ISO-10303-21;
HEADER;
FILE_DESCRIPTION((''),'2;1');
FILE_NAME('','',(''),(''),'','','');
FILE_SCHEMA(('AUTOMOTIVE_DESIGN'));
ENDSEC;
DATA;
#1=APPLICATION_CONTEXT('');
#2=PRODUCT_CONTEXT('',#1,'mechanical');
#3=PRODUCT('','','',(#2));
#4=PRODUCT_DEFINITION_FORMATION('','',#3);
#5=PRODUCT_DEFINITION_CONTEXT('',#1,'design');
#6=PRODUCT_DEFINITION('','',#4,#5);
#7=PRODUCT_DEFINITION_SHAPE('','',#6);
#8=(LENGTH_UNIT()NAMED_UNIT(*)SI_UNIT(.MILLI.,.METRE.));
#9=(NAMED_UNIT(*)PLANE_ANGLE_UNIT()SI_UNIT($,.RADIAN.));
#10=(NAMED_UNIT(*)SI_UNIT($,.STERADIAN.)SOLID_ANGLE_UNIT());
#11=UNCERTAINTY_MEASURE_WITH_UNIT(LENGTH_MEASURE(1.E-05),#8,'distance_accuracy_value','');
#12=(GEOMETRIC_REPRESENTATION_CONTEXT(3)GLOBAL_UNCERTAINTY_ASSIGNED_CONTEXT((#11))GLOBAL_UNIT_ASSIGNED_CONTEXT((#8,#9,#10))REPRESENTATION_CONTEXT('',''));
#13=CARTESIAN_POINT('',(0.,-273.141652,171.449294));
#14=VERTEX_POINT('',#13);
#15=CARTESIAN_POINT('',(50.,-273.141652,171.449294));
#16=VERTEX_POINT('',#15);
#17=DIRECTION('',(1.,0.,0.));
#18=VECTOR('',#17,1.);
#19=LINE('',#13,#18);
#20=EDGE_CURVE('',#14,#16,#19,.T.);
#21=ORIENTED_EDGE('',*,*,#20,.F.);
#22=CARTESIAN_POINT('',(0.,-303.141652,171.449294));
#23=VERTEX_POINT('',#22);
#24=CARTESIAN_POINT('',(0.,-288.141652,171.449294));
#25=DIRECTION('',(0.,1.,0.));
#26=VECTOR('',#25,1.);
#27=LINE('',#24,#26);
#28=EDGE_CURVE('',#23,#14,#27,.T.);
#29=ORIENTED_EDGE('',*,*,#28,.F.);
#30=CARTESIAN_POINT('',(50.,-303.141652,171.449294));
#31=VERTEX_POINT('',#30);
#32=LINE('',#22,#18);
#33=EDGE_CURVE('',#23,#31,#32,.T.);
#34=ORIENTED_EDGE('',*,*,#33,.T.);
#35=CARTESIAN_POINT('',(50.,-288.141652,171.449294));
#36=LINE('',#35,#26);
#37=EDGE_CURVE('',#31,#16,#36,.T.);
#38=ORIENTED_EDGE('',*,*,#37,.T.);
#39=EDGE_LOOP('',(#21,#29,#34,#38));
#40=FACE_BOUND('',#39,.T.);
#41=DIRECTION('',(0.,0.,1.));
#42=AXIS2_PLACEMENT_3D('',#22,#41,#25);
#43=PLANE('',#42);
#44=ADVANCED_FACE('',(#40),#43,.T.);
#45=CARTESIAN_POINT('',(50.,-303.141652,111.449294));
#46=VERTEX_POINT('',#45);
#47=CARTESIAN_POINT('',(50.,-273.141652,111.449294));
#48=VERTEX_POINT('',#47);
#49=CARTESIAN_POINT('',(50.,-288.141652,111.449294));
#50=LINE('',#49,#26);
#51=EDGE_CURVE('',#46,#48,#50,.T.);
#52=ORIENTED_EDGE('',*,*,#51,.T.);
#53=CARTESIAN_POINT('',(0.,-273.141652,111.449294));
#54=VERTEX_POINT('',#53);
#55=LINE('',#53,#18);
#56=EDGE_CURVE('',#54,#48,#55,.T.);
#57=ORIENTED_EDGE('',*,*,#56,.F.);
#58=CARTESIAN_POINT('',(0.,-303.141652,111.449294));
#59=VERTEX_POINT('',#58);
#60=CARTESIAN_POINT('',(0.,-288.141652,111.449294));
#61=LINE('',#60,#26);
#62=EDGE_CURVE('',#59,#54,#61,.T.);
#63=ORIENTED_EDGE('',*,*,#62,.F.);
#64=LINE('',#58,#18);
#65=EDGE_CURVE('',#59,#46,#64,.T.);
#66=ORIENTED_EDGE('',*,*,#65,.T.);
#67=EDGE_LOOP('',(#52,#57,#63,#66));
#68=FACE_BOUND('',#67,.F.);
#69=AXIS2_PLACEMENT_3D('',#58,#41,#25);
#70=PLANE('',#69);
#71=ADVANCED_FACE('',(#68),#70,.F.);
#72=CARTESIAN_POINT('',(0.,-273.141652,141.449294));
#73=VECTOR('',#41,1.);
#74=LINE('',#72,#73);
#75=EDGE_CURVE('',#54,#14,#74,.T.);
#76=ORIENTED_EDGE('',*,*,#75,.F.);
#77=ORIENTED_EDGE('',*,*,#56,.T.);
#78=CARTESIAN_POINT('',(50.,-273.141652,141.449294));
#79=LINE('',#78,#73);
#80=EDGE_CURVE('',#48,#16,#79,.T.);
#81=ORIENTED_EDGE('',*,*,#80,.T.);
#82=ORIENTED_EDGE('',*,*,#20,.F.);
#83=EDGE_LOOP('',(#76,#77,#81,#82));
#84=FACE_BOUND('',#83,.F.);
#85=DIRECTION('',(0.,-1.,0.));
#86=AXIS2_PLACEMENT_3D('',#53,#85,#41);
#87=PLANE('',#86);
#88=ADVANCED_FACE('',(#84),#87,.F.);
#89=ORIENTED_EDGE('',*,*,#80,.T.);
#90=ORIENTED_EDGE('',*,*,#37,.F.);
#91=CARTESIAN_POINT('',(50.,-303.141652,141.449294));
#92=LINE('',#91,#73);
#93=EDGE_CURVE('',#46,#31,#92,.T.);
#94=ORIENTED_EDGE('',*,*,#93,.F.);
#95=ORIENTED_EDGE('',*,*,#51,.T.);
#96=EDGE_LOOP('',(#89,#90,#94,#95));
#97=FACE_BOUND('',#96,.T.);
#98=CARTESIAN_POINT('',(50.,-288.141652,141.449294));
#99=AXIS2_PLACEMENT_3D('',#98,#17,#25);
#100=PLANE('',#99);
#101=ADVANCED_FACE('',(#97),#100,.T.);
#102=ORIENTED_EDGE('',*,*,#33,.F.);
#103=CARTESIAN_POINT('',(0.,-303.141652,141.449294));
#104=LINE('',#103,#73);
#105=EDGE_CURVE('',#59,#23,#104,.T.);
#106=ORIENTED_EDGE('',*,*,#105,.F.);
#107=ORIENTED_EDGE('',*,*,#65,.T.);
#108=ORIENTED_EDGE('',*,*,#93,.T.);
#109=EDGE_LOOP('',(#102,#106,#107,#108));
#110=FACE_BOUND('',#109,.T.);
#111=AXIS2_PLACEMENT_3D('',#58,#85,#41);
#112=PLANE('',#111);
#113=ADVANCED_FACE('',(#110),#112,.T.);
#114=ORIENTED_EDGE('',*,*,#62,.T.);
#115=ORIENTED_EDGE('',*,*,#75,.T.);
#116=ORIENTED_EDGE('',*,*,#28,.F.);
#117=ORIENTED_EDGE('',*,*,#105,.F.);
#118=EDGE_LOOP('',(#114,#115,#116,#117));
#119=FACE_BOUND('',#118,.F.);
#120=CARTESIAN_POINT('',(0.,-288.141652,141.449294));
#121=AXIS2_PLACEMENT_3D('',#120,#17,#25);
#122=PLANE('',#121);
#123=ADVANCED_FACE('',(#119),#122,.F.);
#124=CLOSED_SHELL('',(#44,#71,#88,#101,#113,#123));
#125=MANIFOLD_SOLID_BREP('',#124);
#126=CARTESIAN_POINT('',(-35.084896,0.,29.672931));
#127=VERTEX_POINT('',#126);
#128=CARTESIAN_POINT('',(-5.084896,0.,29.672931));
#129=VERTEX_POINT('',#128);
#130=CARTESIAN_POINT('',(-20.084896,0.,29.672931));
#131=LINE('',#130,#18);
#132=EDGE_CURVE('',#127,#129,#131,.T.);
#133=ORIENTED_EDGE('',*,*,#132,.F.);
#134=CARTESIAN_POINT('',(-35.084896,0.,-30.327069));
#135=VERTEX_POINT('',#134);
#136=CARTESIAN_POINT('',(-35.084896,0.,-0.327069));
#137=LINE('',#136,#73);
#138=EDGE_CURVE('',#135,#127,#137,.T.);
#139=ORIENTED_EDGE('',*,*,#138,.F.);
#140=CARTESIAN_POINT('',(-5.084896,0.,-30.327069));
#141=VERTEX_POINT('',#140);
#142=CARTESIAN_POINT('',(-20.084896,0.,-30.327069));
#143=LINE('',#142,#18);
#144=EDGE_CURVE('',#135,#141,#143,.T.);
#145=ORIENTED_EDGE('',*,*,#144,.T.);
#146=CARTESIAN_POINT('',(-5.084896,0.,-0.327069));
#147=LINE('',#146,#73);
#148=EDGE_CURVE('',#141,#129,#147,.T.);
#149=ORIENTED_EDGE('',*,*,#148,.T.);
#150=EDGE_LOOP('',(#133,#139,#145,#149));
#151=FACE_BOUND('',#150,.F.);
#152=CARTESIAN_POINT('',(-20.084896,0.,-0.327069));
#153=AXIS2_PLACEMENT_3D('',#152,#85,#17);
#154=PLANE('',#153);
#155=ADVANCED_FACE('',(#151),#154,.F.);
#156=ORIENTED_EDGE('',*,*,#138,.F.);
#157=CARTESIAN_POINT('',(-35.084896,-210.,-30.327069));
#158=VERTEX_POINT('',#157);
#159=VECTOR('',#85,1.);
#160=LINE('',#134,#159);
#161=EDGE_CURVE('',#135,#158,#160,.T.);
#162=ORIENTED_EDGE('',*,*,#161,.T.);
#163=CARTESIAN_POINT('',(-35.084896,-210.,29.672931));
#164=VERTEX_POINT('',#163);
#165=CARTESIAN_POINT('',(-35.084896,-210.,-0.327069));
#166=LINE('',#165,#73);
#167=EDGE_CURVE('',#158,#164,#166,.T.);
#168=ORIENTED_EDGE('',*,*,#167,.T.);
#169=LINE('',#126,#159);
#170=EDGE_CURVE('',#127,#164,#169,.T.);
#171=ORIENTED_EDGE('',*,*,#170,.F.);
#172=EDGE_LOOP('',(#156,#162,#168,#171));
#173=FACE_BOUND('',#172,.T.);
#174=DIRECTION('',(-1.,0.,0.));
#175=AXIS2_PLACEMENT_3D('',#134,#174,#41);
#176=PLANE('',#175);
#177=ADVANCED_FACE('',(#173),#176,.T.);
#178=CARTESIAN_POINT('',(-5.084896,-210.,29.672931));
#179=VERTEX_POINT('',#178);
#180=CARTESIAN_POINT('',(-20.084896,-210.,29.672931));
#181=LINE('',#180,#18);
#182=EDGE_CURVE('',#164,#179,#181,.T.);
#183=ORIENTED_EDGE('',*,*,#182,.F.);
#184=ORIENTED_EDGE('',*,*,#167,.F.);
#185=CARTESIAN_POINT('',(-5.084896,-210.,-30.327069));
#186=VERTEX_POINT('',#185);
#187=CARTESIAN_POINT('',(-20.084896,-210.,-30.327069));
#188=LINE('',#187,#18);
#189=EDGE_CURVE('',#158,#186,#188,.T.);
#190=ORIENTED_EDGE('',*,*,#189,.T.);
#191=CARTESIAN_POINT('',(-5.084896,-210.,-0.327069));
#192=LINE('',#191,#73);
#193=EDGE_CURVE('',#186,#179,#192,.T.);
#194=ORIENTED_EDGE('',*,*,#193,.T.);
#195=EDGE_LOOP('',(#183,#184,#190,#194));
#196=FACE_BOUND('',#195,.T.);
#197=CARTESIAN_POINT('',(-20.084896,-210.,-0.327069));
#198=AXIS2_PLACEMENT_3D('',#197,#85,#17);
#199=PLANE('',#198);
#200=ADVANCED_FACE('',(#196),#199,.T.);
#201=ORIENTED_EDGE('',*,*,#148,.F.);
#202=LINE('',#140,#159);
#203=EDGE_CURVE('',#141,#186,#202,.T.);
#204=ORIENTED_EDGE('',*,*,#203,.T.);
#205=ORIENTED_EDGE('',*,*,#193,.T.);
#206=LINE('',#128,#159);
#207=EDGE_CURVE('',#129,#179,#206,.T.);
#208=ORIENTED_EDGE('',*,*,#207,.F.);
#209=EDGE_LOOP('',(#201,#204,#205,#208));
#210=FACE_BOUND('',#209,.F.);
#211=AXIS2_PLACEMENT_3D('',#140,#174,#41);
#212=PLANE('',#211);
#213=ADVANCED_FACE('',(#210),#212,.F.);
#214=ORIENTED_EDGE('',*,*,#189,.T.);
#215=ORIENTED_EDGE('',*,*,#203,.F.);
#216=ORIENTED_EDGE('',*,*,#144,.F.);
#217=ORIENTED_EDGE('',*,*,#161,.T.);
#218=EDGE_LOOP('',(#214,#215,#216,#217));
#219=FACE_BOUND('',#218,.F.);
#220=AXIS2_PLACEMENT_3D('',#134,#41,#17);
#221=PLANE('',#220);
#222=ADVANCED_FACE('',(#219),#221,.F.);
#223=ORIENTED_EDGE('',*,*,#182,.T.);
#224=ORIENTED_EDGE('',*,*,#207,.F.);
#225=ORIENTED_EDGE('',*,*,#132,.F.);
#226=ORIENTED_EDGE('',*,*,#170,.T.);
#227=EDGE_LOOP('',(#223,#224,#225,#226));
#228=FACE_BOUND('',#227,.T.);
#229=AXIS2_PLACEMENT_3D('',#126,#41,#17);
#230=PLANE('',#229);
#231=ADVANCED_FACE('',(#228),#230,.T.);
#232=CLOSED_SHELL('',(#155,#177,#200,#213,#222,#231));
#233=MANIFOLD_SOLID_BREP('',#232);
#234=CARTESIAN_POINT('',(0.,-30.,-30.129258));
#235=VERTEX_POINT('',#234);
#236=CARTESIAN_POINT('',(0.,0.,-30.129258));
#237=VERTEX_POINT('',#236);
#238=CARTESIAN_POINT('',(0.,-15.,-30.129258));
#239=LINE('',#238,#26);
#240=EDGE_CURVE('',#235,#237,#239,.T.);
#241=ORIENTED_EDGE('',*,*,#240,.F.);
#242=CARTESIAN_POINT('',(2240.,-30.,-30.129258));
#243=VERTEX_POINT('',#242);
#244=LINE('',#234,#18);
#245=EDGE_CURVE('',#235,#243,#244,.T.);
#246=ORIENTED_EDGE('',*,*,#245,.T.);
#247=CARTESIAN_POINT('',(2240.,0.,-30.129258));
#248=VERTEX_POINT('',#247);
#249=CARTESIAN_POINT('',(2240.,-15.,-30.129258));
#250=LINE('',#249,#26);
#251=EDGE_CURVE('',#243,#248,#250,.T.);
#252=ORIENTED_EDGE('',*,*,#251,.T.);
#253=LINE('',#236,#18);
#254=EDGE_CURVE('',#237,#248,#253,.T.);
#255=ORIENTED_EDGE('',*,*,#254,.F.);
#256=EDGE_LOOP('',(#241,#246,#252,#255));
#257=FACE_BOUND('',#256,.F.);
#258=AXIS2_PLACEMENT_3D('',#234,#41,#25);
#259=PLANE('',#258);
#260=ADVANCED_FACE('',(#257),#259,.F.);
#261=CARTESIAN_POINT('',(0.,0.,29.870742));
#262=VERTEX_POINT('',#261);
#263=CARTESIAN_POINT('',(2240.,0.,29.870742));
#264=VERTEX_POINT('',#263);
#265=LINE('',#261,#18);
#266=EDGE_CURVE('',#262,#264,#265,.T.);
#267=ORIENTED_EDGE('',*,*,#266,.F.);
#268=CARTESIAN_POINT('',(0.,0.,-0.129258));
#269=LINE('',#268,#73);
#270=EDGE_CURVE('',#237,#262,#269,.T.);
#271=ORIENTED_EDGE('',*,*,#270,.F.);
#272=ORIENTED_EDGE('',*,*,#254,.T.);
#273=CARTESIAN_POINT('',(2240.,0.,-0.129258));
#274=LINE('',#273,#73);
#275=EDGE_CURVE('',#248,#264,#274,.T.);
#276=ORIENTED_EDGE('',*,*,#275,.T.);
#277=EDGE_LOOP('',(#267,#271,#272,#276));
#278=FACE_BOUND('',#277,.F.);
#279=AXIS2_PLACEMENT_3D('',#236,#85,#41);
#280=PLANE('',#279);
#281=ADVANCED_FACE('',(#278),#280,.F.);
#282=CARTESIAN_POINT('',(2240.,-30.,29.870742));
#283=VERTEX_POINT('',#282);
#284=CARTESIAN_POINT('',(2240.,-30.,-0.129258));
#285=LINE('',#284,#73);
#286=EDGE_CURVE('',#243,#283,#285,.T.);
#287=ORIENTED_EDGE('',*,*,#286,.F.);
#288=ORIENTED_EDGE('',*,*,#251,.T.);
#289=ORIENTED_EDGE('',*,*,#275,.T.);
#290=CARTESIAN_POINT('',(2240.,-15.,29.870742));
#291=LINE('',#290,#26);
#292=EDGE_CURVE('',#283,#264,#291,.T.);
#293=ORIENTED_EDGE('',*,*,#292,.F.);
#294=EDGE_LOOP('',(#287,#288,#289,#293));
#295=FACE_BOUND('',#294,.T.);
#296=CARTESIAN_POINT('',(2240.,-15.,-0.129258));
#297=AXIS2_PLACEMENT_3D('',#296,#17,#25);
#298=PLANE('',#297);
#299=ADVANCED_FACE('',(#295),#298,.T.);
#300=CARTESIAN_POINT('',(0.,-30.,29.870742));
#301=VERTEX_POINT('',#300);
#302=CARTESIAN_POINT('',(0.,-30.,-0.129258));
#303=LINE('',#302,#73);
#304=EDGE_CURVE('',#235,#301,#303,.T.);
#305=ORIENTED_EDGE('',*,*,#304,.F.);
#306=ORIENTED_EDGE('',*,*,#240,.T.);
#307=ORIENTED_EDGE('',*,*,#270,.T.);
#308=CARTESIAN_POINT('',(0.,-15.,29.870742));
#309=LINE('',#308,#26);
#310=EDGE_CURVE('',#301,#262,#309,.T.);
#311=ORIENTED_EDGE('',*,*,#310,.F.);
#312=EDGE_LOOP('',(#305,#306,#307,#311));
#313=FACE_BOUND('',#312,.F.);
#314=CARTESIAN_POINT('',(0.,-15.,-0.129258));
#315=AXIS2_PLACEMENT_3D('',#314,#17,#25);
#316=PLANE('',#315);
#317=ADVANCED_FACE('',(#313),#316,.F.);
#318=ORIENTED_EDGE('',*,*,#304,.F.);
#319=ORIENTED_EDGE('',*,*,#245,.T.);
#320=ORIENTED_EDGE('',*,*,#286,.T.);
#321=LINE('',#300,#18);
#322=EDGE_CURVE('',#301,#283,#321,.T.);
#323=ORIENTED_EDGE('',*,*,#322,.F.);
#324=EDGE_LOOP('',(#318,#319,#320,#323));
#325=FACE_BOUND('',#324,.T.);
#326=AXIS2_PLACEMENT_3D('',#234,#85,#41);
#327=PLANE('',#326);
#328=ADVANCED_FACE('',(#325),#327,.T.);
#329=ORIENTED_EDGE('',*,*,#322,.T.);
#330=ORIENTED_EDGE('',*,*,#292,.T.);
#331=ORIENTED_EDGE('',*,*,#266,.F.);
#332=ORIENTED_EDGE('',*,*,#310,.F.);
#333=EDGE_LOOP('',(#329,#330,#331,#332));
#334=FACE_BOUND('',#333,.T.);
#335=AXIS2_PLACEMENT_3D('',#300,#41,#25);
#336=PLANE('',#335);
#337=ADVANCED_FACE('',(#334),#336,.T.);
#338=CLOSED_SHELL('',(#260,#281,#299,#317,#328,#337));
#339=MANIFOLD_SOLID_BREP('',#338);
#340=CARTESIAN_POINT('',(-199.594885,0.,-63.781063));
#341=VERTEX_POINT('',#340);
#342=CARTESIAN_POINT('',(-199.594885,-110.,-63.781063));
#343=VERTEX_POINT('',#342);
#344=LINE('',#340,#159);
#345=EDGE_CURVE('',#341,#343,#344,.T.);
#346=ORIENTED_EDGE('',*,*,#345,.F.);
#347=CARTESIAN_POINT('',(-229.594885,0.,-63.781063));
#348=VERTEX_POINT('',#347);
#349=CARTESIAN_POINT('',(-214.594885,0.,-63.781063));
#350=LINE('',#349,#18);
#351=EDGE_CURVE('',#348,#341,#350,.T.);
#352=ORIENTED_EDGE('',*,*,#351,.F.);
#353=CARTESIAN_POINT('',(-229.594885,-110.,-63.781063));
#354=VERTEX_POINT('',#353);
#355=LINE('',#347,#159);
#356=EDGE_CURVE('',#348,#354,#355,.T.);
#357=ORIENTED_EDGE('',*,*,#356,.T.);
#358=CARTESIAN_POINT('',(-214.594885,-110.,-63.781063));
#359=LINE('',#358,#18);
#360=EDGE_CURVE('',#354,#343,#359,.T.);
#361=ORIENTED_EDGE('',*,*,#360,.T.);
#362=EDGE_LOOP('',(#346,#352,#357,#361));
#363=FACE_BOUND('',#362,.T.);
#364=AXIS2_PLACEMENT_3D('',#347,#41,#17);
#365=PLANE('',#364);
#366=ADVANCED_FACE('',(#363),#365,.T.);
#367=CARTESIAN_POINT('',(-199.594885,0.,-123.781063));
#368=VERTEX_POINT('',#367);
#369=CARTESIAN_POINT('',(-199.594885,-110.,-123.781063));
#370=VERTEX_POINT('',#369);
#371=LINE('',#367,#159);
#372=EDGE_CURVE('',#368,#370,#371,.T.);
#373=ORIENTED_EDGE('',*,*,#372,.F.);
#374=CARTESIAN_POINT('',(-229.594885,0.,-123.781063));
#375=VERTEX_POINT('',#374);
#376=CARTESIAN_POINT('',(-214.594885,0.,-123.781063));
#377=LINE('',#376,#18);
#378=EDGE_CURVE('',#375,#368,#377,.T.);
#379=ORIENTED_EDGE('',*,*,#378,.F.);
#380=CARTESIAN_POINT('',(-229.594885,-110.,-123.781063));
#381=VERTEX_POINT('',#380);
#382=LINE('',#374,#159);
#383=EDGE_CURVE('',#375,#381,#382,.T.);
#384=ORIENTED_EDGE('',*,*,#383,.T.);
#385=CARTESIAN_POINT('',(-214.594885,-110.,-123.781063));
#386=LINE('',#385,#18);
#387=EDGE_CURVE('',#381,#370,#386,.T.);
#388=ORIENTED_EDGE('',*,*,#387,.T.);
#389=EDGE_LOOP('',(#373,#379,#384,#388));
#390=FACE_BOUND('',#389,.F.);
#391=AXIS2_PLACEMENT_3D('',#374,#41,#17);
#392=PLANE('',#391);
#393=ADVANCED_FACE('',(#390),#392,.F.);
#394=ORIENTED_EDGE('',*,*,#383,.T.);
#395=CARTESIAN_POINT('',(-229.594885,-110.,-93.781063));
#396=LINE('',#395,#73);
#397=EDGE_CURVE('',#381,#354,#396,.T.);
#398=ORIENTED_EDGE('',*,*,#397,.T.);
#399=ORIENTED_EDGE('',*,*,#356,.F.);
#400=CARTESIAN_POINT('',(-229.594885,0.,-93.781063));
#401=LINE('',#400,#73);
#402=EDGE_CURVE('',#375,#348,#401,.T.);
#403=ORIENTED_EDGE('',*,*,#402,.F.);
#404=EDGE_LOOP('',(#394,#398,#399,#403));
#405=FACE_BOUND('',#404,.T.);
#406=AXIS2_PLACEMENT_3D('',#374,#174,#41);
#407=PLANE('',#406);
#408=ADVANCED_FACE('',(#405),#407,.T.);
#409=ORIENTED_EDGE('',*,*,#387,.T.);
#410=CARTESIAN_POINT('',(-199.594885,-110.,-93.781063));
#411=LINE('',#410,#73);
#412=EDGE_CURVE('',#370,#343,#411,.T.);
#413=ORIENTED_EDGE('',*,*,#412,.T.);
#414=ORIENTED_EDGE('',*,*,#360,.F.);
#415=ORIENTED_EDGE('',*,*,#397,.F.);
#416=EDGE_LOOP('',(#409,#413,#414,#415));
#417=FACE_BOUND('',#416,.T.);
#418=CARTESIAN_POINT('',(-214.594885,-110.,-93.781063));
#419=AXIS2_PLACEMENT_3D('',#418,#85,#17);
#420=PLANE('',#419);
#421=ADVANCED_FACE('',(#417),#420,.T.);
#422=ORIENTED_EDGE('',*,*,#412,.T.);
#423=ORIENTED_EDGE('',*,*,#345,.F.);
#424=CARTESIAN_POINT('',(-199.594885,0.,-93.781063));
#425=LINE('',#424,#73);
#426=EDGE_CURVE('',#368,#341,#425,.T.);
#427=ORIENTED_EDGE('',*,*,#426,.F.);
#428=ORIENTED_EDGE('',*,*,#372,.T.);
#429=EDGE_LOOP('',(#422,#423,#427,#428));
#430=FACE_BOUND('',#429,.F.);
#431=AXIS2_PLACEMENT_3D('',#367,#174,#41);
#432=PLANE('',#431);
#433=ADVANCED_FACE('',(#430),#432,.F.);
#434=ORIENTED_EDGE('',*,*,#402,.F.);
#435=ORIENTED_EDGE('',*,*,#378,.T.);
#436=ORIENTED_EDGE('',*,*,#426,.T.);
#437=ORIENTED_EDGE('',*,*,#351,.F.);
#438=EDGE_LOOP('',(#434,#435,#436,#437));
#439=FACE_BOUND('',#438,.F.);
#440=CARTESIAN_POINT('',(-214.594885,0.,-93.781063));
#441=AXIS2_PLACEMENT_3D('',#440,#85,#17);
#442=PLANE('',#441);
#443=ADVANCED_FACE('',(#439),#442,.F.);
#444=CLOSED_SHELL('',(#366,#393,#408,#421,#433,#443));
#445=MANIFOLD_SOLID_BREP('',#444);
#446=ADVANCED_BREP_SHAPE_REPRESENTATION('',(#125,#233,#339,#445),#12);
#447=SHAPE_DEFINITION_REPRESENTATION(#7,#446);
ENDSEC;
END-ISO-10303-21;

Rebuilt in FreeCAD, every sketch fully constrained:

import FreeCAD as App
import Part
import Sketcher
Q = App.Units.Quantity

doc = App.newDocument("Part")
body = doc.addObject("PartDesign::Body", "Body")

sketch1 = doc.addObject("Sketcher::SketchObject", "Sketch")
body.addObject(sketch1)
sketch1.AttachmentSupport = (doc.YZ_Plane, [""])
sketch1.MapMode = "FlatFace"
sketch1.addGeometry([
    Part.LineSegment(App.Vector(-30, 30, 0), App.Vector(-30, -30, 0)),
    Part.LineSegment(App.Vector(-30, -30, 0), App.Vector(0, -30, 0)),
    Part.LineSegment(App.Vector(0, -30, 0), App.Vector(0, 30, 0)),
    Part.LineSegment(App.Vector(0, 30, 0), App.Vector(-30, 30, 0)),
], False)
sketch1.addConstraint([
    Sketcher.Constraint("Coincident", 0, 2, 1, 1),
    Sketcher.Constraint("Coincident", 1, 2, 2, 1),
    Sketcher.Constraint("Coincident", 2, 2, 3, 1),
    Sketcher.Constraint("Coincident", 3, 2, 0, 1),
    Sketcher.Constraint("Vertical", 0),
    Sketcher.Constraint("Horizontal", 1),
    Sketcher.Constraint("Vertical", 2),
    Sketcher.Constraint("Horizontal", 3),
    Sketcher.Constraint("PointOnObject", 1, 2, -2),
    Sketcher.Constraint("DistanceX", 1, 1, 1, 2, Q("30 mm")),
    Sketcher.Constraint("DistanceY", 0, 2, 0, 1, Q("60 mm")),
    Sketcher.Constraint("DistanceY", 0, 2, -1, 1, Q("30.129258 mm")),
])
pad1 = doc.addObject("PartDesign::Pad", "Pad")
body.addObject(pad1)
pad1.Profile = sketch1
pad1.Length = 2240
body2 = doc.addObject("PartDesign::Body", "Body001")

sketch2 = doc.addObject("Sketcher::SketchObject", "Sketch001")
body2.addObject(sketch2)
sketch2.AttachmentSupport = (doc.getObject("XZ_Plane001"), [""])
sketch2.MapMode = "FlatFace"
sketch2.addGeometry([
    Part.LineSegment(App.Vector(-35, 30, 0), App.Vector(-35, -30, 0)),
    Part.LineSegment(App.Vector(-35, -30, 0), App.Vector(-5, -30, 0)),
    Part.LineSegment(App.Vector(-5, -30, 0), App.Vector(-5, 30, 0)),
    Part.LineSegment(App.Vector(-5, 30, 0), App.Vector(-35, 30, 0)),
], False)
sketch2.addConstraint([
    Sketcher.Constraint("Coincident", 0, 2, 1, 1),
    Sketcher.Constraint("Coincident", 1, 2, 2, 1),
    Sketcher.Constraint("Coincident", 2, 2, 3, 1),
    Sketcher.Constraint("Coincident", 3, 2, 0, 1),
    Sketcher.Constraint("Vertical", 0),
    Sketcher.Constraint("Horizontal", 1),
    Sketcher.Constraint("Vertical", 2),
    Sketcher.Constraint("Horizontal", 3),
    Sketcher.Constraint("DistanceX", 1, 1, 1, 2, Q("30 mm")),
    Sketcher.Constraint("DistanceY", 0, 2, 0, 1, Q("60 mm")),
    Sketcher.Constraint("DistanceY", 0, 2, -1, 1, Q("30.327069 mm")),
    Sketcher.Constraint("DistanceX", 0, 2, -1, 1, Q("35.084896 mm")),
])
pad2 = doc.addObject("PartDesign::Pad", "Pad001")
body2.addObject(pad2)
pad2.Profile = sketch2
pad2.Length = 210
body3 = doc.addObject("PartDesign::Body", "Body002")

sketch3 = doc.addObject("Sketcher::SketchObject", "Sketch002")
body3.addObject(sketch3)
sketch3.AttachmentSupport = (doc.getObject("YZ_Plane002"), [""])
sketch3.MapMode = "FlatFace"
sketch3.addGeometry([
    Part.LineSegment(App.Vector(-303, 171, 0), App.Vector(-303, 111, 0)),
    Part.LineSegment(App.Vector(-303, 111, 0), App.Vector(-273, 111, 0)),
    Part.LineSegment(App.Vector(-273, 111, 0), App.Vector(-273, 171, 0)),
    Part.LineSegment(App.Vector(-273, 171, 0), App.Vector(-303, 171, 0)),
], False)
sketch3.addConstraint([
    Sketcher.Constraint("Coincident", 0, 2, 1, 1),
    Sketcher.Constraint("Coincident", 1, 2, 2, 1),
    Sketcher.Constraint("Coincident", 2, 2, 3, 1),
    Sketcher.Constraint("Coincident", 3, 2, 0, 1),
    Sketcher.Constraint("Vertical", 0),
    Sketcher.Constraint("Horizontal", 1),
    Sketcher.Constraint("Vertical", 2),
    Sketcher.Constraint("Horizontal", 3),
    Sketcher.Constraint("DistanceX", 1, 1, 1, 2, Q("30 mm")),
    Sketcher.Constraint("DistanceY", 0, 2, 0, 1, Q("60 mm")),
    Sketcher.Constraint("DistanceX", 0, 2, -1, 1, Q("303.141652 mm")),
    Sketcher.Constraint("DistanceY", -1, 1, 0, 2, Q("111.449294 mm")),
])
pad3 = doc.addObject("PartDesign::Pad", "Pad002")
body3.addObject(pad3)
pad3.Profile = sketch3
pad3.Length = 50
body4 = doc.addObject("PartDesign::Body", "Body003")

sketch4 = doc.addObject("Sketcher::SketchObject", "Sketch003")
body4.addObject(sketch4)
sketch4.AttachmentSupport = (doc.getObject("XZ_Plane003"), [""])
sketch4.MapMode = "FlatFace"
sketch4.addGeometry([
    Part.LineSegment(App.Vector(-230, -64, 0), App.Vector(-230, -124, 0)),
    Part.LineSegment(App.Vector(-230, -124, 0), App.Vector(-200, -124, 0)),
    Part.LineSegment(App.Vector(-200, -124, 0), App.Vector(-200, -64, 0)),
    Part.LineSegment(App.Vector(-200, -64, 0), App.Vector(-230, -64, 0)),
], False)
sketch4.addConstraint([
    Sketcher.Constraint("Coincident", 0, 2, 1, 1),
    Sketcher.Constraint("Coincident", 1, 2, 2, 1),
    Sketcher.Constraint("Coincident", 2, 2, 3, 1),
    Sketcher.Constraint("Coincident", 3, 2, 0, 1),
    Sketcher.Constraint("Vertical", 0),
    Sketcher.Constraint("Horizontal", 1),
    Sketcher.Constraint("Vertical", 2),
    Sketcher.Constraint("Horizontal", 3),
    Sketcher.Constraint("DistanceX", 1, 1, 1, 2, Q("30 mm")),
    Sketcher.Constraint("DistanceY", 0, 2, 0, 1, Q("60 mm")),
    Sketcher.Constraint("DistanceX", 0, 2, -1, 1, Q("229.594885 mm")),
    Sketcher.Constraint("DistanceY", 0, 2, -1, 1, Q("123.781063 mm")),
])
pad4 = doc.addObject("PartDesign::Pad", "Pad003")
body4.addObject(pad4)
pad4.Profile = sketch4
pad4.Length = 110

doc.recompute()
